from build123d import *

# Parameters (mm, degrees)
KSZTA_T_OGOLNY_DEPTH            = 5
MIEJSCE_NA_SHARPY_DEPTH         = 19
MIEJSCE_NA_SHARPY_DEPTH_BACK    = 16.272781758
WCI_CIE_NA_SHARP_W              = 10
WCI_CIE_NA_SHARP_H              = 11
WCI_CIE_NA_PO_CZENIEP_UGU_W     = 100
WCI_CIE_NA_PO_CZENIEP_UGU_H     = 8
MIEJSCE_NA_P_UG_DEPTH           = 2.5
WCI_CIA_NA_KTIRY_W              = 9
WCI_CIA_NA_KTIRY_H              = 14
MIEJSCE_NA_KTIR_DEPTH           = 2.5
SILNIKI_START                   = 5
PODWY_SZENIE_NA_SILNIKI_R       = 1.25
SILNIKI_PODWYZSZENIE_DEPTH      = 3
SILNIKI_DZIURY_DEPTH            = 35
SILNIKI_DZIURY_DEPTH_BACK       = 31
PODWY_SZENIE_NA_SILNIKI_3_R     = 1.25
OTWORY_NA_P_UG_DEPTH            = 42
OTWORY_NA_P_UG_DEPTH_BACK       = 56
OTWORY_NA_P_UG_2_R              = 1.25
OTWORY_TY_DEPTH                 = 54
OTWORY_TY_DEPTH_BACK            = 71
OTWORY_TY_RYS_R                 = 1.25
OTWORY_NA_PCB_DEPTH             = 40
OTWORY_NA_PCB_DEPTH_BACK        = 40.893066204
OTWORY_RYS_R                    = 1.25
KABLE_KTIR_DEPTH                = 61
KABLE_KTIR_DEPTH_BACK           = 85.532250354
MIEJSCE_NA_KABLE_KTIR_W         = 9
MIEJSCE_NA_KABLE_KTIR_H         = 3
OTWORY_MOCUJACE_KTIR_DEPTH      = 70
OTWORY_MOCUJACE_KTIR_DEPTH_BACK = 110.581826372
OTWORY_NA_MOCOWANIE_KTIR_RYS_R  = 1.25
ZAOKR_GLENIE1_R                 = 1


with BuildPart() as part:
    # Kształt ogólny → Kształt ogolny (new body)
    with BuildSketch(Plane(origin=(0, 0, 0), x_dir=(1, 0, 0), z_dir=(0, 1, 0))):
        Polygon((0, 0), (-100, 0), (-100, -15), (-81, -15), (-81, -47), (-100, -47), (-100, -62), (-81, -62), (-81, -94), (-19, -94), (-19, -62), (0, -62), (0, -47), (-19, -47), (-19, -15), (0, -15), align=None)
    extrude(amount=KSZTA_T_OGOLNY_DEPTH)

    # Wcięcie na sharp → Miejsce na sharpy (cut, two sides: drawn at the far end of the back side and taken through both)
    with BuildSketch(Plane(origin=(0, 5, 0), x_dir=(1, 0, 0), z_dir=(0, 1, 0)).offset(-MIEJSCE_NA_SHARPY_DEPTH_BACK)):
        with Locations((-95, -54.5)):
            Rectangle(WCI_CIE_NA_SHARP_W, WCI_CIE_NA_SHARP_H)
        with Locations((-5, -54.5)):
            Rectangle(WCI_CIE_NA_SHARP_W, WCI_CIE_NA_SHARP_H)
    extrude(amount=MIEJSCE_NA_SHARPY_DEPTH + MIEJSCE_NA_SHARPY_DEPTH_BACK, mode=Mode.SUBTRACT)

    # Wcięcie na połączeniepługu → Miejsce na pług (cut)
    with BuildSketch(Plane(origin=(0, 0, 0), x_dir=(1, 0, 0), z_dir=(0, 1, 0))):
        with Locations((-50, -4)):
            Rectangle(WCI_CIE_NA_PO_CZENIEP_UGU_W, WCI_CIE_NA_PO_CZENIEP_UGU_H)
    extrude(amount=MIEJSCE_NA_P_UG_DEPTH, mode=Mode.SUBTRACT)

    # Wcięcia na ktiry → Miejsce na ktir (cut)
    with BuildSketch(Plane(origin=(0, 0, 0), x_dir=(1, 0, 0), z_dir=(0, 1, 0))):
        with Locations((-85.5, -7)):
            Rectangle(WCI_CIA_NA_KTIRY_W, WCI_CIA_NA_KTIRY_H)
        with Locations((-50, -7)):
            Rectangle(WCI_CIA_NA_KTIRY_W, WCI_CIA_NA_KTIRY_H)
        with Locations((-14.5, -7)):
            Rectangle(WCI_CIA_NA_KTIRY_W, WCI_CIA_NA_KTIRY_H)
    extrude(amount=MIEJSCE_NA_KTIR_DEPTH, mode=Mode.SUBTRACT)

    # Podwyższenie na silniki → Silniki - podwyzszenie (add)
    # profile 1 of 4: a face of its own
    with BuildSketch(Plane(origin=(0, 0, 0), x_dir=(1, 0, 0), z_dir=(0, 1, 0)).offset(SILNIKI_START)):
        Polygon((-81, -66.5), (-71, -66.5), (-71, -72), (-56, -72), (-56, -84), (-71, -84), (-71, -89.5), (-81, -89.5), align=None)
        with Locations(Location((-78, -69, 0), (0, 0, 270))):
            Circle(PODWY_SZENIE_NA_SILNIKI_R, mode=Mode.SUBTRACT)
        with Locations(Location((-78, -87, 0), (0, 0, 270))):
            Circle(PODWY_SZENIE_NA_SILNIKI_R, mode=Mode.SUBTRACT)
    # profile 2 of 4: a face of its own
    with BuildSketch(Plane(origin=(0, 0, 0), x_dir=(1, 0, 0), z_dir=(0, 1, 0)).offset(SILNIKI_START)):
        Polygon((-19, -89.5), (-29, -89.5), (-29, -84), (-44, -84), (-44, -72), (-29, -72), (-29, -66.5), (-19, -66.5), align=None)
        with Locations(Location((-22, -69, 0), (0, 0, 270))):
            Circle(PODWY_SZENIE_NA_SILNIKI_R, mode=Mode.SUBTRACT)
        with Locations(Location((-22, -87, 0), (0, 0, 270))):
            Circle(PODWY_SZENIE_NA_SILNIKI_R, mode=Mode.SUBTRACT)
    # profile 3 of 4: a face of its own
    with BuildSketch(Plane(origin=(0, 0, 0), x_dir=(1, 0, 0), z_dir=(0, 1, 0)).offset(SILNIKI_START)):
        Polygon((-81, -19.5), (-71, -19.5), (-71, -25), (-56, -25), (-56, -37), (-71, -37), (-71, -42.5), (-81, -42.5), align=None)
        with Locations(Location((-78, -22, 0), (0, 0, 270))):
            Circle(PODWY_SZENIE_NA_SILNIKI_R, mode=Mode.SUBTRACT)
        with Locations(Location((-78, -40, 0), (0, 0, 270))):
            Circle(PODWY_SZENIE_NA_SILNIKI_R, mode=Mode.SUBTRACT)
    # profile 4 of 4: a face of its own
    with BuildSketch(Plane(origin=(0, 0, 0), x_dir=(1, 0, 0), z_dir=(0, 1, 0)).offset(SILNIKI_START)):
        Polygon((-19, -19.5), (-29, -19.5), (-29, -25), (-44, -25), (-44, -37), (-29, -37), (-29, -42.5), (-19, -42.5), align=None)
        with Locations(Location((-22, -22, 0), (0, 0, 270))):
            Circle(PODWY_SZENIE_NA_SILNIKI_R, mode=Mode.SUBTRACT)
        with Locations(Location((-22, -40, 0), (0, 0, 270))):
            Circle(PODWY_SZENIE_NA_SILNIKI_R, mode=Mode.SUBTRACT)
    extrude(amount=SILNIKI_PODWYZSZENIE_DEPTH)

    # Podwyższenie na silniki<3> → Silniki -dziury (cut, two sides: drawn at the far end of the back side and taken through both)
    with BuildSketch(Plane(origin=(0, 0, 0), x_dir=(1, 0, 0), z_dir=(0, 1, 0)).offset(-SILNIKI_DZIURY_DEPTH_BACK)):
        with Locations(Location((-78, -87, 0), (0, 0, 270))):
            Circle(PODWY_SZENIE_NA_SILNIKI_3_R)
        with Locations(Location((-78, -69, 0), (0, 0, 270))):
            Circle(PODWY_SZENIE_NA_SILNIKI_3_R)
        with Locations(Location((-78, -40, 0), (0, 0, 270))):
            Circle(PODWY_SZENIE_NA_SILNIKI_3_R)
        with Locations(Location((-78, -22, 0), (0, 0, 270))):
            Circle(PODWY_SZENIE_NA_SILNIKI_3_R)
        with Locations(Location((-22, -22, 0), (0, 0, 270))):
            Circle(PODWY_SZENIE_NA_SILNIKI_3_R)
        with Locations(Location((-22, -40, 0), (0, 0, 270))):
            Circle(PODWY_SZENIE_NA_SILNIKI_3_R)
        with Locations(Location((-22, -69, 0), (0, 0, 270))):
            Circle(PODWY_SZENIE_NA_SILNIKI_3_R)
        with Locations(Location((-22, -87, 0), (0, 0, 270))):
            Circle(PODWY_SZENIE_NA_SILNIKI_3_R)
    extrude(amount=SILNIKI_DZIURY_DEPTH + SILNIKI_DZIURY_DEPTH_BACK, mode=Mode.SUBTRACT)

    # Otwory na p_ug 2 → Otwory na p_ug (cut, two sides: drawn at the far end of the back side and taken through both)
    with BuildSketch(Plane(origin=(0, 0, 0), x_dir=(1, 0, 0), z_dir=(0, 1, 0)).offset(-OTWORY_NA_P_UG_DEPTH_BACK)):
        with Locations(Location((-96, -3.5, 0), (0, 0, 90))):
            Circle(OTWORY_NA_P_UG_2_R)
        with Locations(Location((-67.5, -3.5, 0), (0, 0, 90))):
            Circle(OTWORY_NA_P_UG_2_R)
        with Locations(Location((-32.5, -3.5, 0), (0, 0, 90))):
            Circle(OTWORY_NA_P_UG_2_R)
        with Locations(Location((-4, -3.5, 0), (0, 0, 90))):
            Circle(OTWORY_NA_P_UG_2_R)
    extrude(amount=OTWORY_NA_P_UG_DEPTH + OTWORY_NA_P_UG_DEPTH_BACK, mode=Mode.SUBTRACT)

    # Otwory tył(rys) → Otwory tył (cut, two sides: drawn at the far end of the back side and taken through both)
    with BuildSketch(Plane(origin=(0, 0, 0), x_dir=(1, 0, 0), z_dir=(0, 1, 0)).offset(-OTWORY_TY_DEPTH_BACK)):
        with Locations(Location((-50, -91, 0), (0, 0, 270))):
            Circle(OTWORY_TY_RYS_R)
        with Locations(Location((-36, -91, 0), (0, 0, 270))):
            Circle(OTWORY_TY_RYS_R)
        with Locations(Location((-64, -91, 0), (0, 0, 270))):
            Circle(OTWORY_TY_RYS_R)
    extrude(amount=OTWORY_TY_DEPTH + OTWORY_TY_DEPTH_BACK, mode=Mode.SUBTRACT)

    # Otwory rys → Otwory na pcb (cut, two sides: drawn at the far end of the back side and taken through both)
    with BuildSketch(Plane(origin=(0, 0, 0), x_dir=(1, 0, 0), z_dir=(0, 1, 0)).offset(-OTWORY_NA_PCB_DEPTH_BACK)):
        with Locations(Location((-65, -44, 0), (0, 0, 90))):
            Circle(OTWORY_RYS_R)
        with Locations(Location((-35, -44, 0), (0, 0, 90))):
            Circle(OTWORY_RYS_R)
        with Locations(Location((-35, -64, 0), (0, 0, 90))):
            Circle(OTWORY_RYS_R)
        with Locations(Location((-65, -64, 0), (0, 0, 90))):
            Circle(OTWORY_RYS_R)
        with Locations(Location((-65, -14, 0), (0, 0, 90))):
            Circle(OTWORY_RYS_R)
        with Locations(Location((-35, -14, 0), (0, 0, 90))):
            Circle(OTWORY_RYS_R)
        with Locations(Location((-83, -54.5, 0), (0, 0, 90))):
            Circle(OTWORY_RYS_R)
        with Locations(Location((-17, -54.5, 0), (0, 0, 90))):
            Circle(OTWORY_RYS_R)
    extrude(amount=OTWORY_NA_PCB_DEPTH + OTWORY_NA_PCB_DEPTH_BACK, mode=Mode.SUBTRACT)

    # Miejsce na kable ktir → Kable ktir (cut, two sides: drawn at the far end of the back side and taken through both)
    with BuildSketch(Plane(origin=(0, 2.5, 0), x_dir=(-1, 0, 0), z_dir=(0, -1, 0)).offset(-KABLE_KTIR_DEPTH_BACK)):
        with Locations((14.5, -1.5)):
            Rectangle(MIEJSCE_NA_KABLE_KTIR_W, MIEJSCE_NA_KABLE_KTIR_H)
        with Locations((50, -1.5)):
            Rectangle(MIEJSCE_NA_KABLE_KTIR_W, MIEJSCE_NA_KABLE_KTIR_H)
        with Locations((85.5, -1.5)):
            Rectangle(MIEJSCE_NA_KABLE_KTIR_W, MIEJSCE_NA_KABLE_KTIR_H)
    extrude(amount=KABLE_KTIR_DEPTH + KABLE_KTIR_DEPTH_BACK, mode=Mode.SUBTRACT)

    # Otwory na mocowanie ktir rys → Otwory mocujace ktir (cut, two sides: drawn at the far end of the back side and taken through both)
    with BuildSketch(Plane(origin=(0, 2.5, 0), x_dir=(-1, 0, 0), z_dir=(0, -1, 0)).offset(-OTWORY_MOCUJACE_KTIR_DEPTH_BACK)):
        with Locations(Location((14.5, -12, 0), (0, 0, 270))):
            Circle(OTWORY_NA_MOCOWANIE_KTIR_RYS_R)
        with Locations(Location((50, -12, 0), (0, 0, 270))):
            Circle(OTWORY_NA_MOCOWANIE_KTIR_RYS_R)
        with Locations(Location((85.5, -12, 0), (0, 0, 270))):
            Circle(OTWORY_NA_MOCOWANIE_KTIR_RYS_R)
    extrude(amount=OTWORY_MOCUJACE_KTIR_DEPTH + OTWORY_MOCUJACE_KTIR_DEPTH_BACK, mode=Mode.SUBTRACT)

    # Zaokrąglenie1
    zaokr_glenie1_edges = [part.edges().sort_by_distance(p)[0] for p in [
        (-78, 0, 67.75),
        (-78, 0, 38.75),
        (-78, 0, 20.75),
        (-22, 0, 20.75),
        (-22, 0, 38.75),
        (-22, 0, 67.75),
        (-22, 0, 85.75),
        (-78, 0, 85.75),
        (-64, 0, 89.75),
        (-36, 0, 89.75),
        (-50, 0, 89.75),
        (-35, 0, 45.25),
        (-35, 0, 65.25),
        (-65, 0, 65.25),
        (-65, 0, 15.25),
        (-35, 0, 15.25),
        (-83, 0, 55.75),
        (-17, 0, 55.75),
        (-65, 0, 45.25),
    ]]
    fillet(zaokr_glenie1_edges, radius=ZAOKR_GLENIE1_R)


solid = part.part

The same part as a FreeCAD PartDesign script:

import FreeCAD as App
import Part
import Sketcher


def edges_at(feature, points):
    """Names of the edges that pass closest to the given points."""
    edges = feature.Shape.Edges
    near = lambda p: min(range(len(edges)), key=lambda i: edges[i].distToShape(Part.Vertex(*p))[0])
    return sorted({f"Edge{near(p) + 1}" for p in points})


def add_polygon(sketch, points):
    """Adds a closed chain of lines whose ends are joined by coincident constraints."""
    first, n = sketch.GeometryCount, len(points)
    for a, b in zip(points, points[1:] + points[:1]):
        sketch.addGeometry(Part.LineSegment(App.Vector(*a, 0), App.Vector(*b, 0)), False)
    for i in range(n):
        sketch.addConstraint(Sketcher.Constraint("Coincident", first + i, 2, first + (i + 1) % n, 1))

doc = App.newDocument("Part")
body = doc.addObject("PartDesign::Body", "Body")

sketch1 = doc.addObject("Sketcher::SketchObject", "Sketch")
body.addObject(sketch1)
sketch1.AttachmentSupport = (doc.XZ_Plane, [""])
sketch1.MapMode = "FlatFace"
add_polygon(sketch1, [(0, 0), (-100, 0), (-100, 15), (-81, 15), (-81, 47), (-100, 47), (-100, 62), (-81, 62), (-81, 94), (-19, 94), (-19, 62), (0, 62), (0, 47), (-19, 47), (-19, 15), (0, 15)])
sketch1.addConstraint(Sketcher.Constraint("Horizontal", 0))
sketch1.addConstraint(Sketcher.Constraint("Vertical", 1))
sketch1.addConstraint(Sketcher.Constraint("Horizontal", 2))
sketch1.addConstraint(Sketcher.Constraint("Vertical", 3))
sketch1.addConstraint(Sketcher.Constraint("Horizontal", 4))
sketch1.addConstraint(Sketcher.Constraint("Vertical", 5))
sketch1.addConstraint(Sketcher.Constraint("Horizontal", 6))
sketch1.addConstraint(Sketcher.Constraint("Vertical", 7))
sketch1.addConstraint(Sketcher.Constraint("Horizontal", 8))
sketch1.addConstraint(Sketcher.Constraint("Vertical", 9))
sketch1.addConstraint(Sketcher.Constraint("Horizontal", 10))
sketch1.addConstraint(Sketcher.Constraint("Vertical", 11))
sketch1.addConstraint(Sketcher.Constraint("Horizontal", 12))
sketch1.addConstraint(Sketcher.Constraint("Vertical", 13))
sketch1.addConstraint(Sketcher.Constraint("Horizontal", 14))
sketch1.addConstraint(Sketcher.Constraint("Vertical", 15))
sketch1.addConstraint(Sketcher.Constraint("Coincident", 15, 2, -1, 1))
sketch1.addConstraint(Sketcher.Constraint("PointOnObject", 10, 2, -2))
sketch1.addConstraint(Sketcher.Constraint("Horizontal", 6, 2, 9, 2))
sketch1.addConstraint(Sketcher.Constraint("Horizontal", 4, 2, 11, 2))
sketch1.addConstraint(Sketcher.Constraint("Horizontal", 2, 2, 13, 2))
sketch1.addConstraint(Sketcher.Constraint("Vertical", 1, 2, 4, 2))
sketch1.addConstraint(Sketcher.Constraint("Vertical", 3, 2, 6, 2))
sketch1.addConstraint(Sketcher.Constraint("Vertical", 9, 2, 12, 2))
sketch1.addConstraint(Sketcher.Constraint("Equal", 6, 10))
sketch1.addConstraint(Sketcher.Constraint("Equal", 1, 5))
sketch1.addConstraint(Sketcher.Constraint("Equal", 3, 7))
sketch1.addConstraint(Sketcher.Constraint("DistanceX", 0, 2, 0, 1, 100.0))
sketch1.addConstraint(Sketcher.Constraint("DistanceX", 2, 1, 2, 2, 19.0))
sketch1.addConstraint(Sketcher.Constraint("DistanceY", 1, 1, 1, 2, 15.0))
sketch1.addConstraint(Sketcher.Constraint("DistanceY", 3, 1, 3, 2, 32.0))
pad1 = doc.addObject("PartDesign::Pad", "Pad")
body.addObject(pad1)
pad1.Profile = sketch1
pad1.Length = 5
pad1.Reversed = True

sketch2 = doc.addObject("Sketcher::SketchObject", "Sketch001")
body.addObject(sketch2)
sketch2.AttachmentSupport = (doc.XZ_Plane, [""])
sketch2.MapMode = "FlatFace"
sketch2.AttachmentOffset = App.Placement(App.Vector(0, 0, -5), App.Rotation())
add_polygon(sketch2, [(-100, 49), (-100, 60), (-90, 60), (-90, 49)])
add_polygon(sketch2, [(-10, 49), (-10, 60), (0, 60), (0, 49)])
sketch2.addConstraint(Sketcher.Constraint("Vertical", 0))
sketch2.addConstraint(Sketcher.Constraint("Horizontal", 1))
sketch2.addConstraint(Sketcher.Constraint("Vertical", 2))
sketch2.addConstraint(Sketcher.Constraint("Horizontal", 3))
sketch2.addConstraint(Sketcher.Constraint("Vertical", 4))
sketch2.addConstraint(Sketcher.Constraint("Horizontal", 5))
sketch2.addConstraint(Sketcher.Constraint("Vertical", 6))
sketch2.addConstraint(Sketcher.Constraint("Horizontal", 7))
sketch2.addConstraint(Sketcher.Constraint("PointOnObject", 5, 2, -2))
sketch2.addConstraint(Sketcher.Constraint("Horizontal", 1, 2, 4, 2))
sketch2.addConstraint(Sketcher.Constraint("Horizontal", 3, 2, 6, 2))
sketch2.addConstraint(Sketcher.Constraint("Equal", 3, 5))
sketch2.addConstraint(Sketcher.Constraint("DistanceX", 1, 1, 1, 2, 10.0))
sketch2.addConstraint(Sketcher.Constraint("DistanceY", 0, 1, 0, 2, 11.0))
sketch2.addConstraint(Sketcher.Constraint("DistanceX", 0, 2, -1, 1, 100.0))
sketch2.addConstraint(Sketcher.Constraint("DistanceY", -1, 1, 0, 2, 60.0))
pocket1 = doc.addObject("PartDesign::Pocket", "Pocket")
body.addObject(pocket1)
pocket1.Profile = sketch2
pocket1.Type = "ThroughAll"
pocket1.Midplane = True

sketch3 = doc.addObject("Sketcher::SketchObject", "Sketch002")
body.addObject(sketch3)
sketch3.AttachmentSupport = (doc.XZ_Plane, [""])
sketch3.MapMode = "FlatFace"
add_polygon(sketch3, [(-100, 0), (-100, 8), (0, 8), (0, 0)])
sketch3.addConstraint(Sketcher.Constraint("Vertical", 0))
sketch3.addConstraint(Sketcher.Constraint("Horizontal", 1))
sketch3.addConstraint(Sketcher.Constraint("Vertical", 2))
sketch3.addConstraint(Sketcher.Constraint("Horizontal", 3))
sketch3.addConstraint(Sketcher.Constraint("Coincident", 2, 2, -1, 1))
sketch3.addConstraint(Sketcher.Constraint("DistanceX", 1, 1, 1, 2, 100.0))
sketch3.addConstraint(Sketcher.Constraint("DistanceY", 0, 1, 0, 2, 8.0))
pocket2 = doc.addObject("PartDesign::Pocket", "Pocket001")
body.addObject(pocket2)
pocket2.Profile = sketch3
pocket2.Length = 2.5

sketch4 = doc.addObject("Sketcher::SketchObject", "Sketch003")
body.addObject(sketch4)
sketch4.AttachmentSupport = (doc.XZ_Plane, [""])
sketch4.MapMode = "FlatFace"
add_polygon(sketch4, [(-90, 0), (-90, 14), (-81, 14), (-81, 0)])
add_polygon(sketch4, [(-54.5, 0), (-54.5, 14), (-45.5, 14), (-45.5, 0)])
add_polygon(sketch4, [(-19, 0), (-19, 14), (-10, 14), (-10, 0)])
sketch4.addConstraint(Sketcher.Constraint("Vertical", 0))
sketch4.addConstraint(Sketcher.Constraint("Horizontal", 1))
sketch4.addConstraint(Sketcher.Constraint("Vertical", 2))
sketch4.addConstraint(Sketcher.Constraint("Horizontal", 3))
sketch4.addConstraint(Sketcher.Constraint("Vertical", 4))
sketch4.addConstraint(Sketcher.Constraint("Horizontal", 5))
sketch4.addConstraint(Sketcher.Constraint("Vertical", 6))
sketch4.addConstraint(Sketcher.Constraint("Horizontal", 7))
sketch4.addConstraint(Sketcher.Constraint("Vertical", 8))
sketch4.addConstraint(Sketcher.Constraint("Horizontal", 9))
sketch4.addConstraint(Sketcher.Constraint("Vertical", 10))
sketch4.addConstraint(Sketcher.Constraint("Horizontal", 11))
sketch4.addConstraint(Sketcher.Constraint("PointOnObject", 2, 2, -1))
sketch4.addConstraint(Sketcher.Constraint("PointOnObject", 6, 2, -1))
sketch4.addConstraint(Sketcher.Constraint("PointOnObject", 10, 2, -1))
sketch4.addConstraint(Sketcher.Constraint("Horizontal", 1, 2, 4, 2))
sketch4.addConstraint(Sketcher.Constraint("Horizontal", 5, 2, 8, 2))
sketch4.addConstraint(Sketcher.Constraint("Equal", 3, 5))
sketch4.addConstraint(Sketcher.Constraint("Equal", 7, 9))
sketch4.addConstraint(Sketcher.Constraint("DistanceX", 1, 1, 1, 2, 9.0))
sketch4.addConstraint(Sketcher.Constraint("DistanceY", 0, 1, 0, 2, 14.0))
sketch4.addConstraint(Sketcher.Constraint("DistanceX", 0, 2, -1, 1, 90.0))
sketch4.addConstraint(Sketcher.Constraint("DistanceX", 8, 2, -1, 1, 19.0))
sketch4.addConstraint(Sketcher.Constraint("DistanceX", 4, 2, -1, 1, 54.5))
pocket3 = doc.addObject("PartDesign::Pocket", "Pocket002")
body.addObject(pocket3)
pocket3.Profile = sketch4
pocket3.Length = 2.5

sketch5 = doc.addObject("Sketcher::SketchObject", "Sketch004")
body.addObject(sketch5)
sketch5.AttachmentSupport = (doc.XZ_Plane, [""])
sketch5.MapMode = "FlatFace"
sketch5.AttachmentOffset = App.Placement(App.Vector(0, 0, -5), App.Rotation())
add_polygon(sketch5, [(-71, 66.5), (-81, 66.5), (-81, 89.5), (-71, 89.5), (-71, 84), (-56, 84), (-56, 72), (-71, 72)])
sketch5.addGeometry(Part.Circle(App.Vector(-78, 87, 0), App.Vector(0, 0, 1), 1.25), False)
sketch5.addGeometry(Part.Circle(App.Vector(-78, 69, 0), App.Vector(0, 0, 1), 1.25), False)
add_polygon(sketch5, [(-29, 89.5), (-19, 89.5), (-19, 66.5), (-29, 66.5), (-29, 72), (-44, 72), (-44, 84), (-29, 84)])
sketch5.addGeometry(Part.Circle(App.Vector(-22, 87, 0), App.Vector(0, 0, 1), 1.25), False)
sketch5.addGeometry(Part.Circle(App.Vector(-22, 69, 0), App.Vector(0, 0, 1), 1.25), False)
add_polygon(sketch5, [(-71, 19.5), (-81, 19.5), (-81, 42.5), (-71, 42.5), (-71, 37), (-56, 37), (-56, 25), (-71, 25)])
sketch5.addGeometry(Part.Circle(App.Vector(-78, 40, 0), App.Vector(0, 0, 1), 1.25), False)
sketch5.addGeometry(Part.Circle(App.Vector(-78, 22, 0), App.Vector(0, 0, 1), 1.25), False)
add_polygon(sketch5, [(-19, 19.5), (-29, 19.5), (-29, 25), (-44, 25), (-44, 37), (-29, 37), (-29, 42.5), (-19, 42.5)])
sketch5.addGeometry(Part.Circle(App.Vector(-22, 40, 0), App.Vector(0, 0, 1), 1.25), False)
sketch5.addGeometry(Part.Circle(App.Vector(-22, 22, 0), App.Vector(0, 0, 1), 1.25), False)
sketch5.addConstraint(Sketcher.Constraint("Horizontal", 0))
sketch5.addConstraint(Sketcher.Constraint("Vertical", 1))
sketch5.addConstraint(Sketcher.Constraint("Horizontal", 2))
sketch5.addConstraint(Sketcher.Constraint("Vertical", 3))
sketch5.addConstraint(Sketcher.Constraint("Horizontal", 4))
sketch5.addConstraint(Sketcher.Constraint("Vertical", 5))
sketch5.addConstraint(Sketcher.Constraint("Horizontal", 6))
sketch5.addConstraint(Sketcher.Constraint("Vertical", 7))
sketch5.addConstraint(Sketcher.Constraint("Horizontal", 10))
sketch5.addConstraint(Sketcher.Constraint("Vertical", 11))
sketch5.addConstraint(Sketcher.Constraint("Horizontal", 12))
sketch5.addConstraint(Sketcher.Constraint("Vertical", 13))
sketch5.addConstraint(Sketcher.Constraint("Horizontal", 14))
sketch5.addConstraint(Sketcher.Constraint("Vertical", 15))
sketch5.addConstraint(Sketcher.Constraint("Horizontal", 16))
sketch5.addConstraint(Sketcher.Constraint("Vertical", 17))
sketch5.addConstraint(Sketcher.Constraint("Horizontal", 20))
sketch5.addConstraint(Sketcher.Constraint("Vertical", 21))
sketch5.addConstraint(Sketcher.Constraint("Horizontal", 22))
sketch5.addConstraint(Sketcher.Constraint("Vertical", 23))
sketch5.addConstraint(Sketcher.Constraint("Horizontal", 24))
sketch5.addConstraint(Sketcher.Constraint("Vertical", 25))
sketch5.addConstraint(Sketcher.Constraint("Horizontal", 26))
sketch5.addConstraint(Sketcher.Constraint("Vertical", 27))
sketch5.addConstraint(Sketcher.Constraint("Horizontal", 30))
sketch5.addConstraint(Sketcher.Constraint("Vertical", 31))
sketch5.addConstraint(Sketcher.Constraint("Horizontal", 32))
sketch5.addConstraint(Sketcher.Constraint("Vertical", 33))
sketch5.addConstraint(Sketcher.Constraint("Horizontal", 34))
sketch5.addConstraint(Sketcher.Constraint("Vertical", 35))
sketch5.addConstraint(Sketcher.Constraint("Horizontal", 36))
sketch5.addConstraint(Sketcher.Constraint("Vertical", 37))
sketch5.addConstraint(Sketcher.Constraint("Equal", 8, 9))
sketch5.addConstraint(Sketcher.Constraint("Equal", 9, 18))
sketch5.addConstraint(Sketcher.Constraint("Equal", 18, 19))
sketch5.addConstraint(Sketcher.Constraint("Equal", 19, 28))
sketch5.addConstraint(Sketcher.Constraint("Equal", 28, 29))
sketch5.addConstraint(Sketcher.Constraint("Equal", 29, 38))
sketch5.addConstraint(Sketcher.Constraint("Equal", 38, 39))
sketch5.addConstraint(Sketcher.Constraint("Horizontal", 8, 3, 18, 3))
sketch5.addConstraint(Sketcher.Constraint("Horizontal", 9, 3, 19, 3))
sketch5.addConstraint(Sketcher.Constraint("Horizontal", 28, 3, 38, 3))
sketch5.addConstraint(Sketcher.Constraint("Horizontal", 29, 3, 39, 3))
sketch5.addConstraint(Sketcher.Constraint("Horizontal", 2, 2, 10, 2))
sketch5.addConstraint(Sketcher.Constraint("Horizontal", 7, 2, 11, 2))
sketch5.addConstraint(Sketcher.Constraint("Horizontal", 6, 2, 13, 2))
sketch5.addConstraint(Sketcher.Constraint("Horizontal", 4, 2, 15, 2))
sketch5.addConstraint(Sketcher.Constraint("Horizontal", 27, 2, 30, 2))
sketch5.addConstraint(Sketcher.Constraint("Horizontal", 26, 2, 31, 2))
sketch5.addConstraint(Sketcher.Constraint("Horizontal", 24, 2, 33, 2))
sketch5.addConstraint(Sketcher.Constraint("Horizontal", 22, 2, 35, 2))
sketch5.addConstraint(Sketcher.Constraint("Vertical", 8, 3, 9, 3))
sketch5.addConstraint(Sketcher.Constraint("Vertical", 18, 3, 19, 3))
sketch5.addConstraint(Sketcher.Constraint("Vertical", 9, 3, 28, 3))
sketch5.addConstraint(Sketcher.Constraint("Vertical", 28, 3, 29, 3))
sketch5.addConstraint(Sketcher.Constraint("Vertical", 19, 3, 38, 3))
sketch5.addConstraint(Sketcher.Constraint("Vertical", 38, 3, 39, 3))
sketch5.addConstraint(Sketcher.Constraint("Vertical", 3, 2, 6, 2))
sketch5.addConstraint(Sketcher.Constraint("Vertical", 13, 2, 16, 2))
sketch5.addConstraint(Sketcher.Constraint("Vertical", 1, 2, 20, 2))
sketch5.addConstraint(Sketcher.Constraint("Vertical", 7, 2, 22, 2))
sketch5.addConstraint(Sketcher.Constraint("Vertical", 5, 2, 24, 2))
sketch5.addConstraint(Sketcher.Constraint("Vertical", 23, 2, 26, 2))
sketch5.addConstraint(Sketcher.Constraint("Vertical", 17, 2, 30, 2))
sketch5.addConstraint(Sketcher.Constraint("Vertical", 15, 2, 32, 2))
sketch5.addConstraint(Sketcher.Constraint("Vertical", 31, 2, 34, 2))
sketch5.addConstraint(Sketcher.Constraint("Vertical", 11, 2, 36, 2))
sketch5.addConstraint(Sketcher.Constraint("Equal", 2, 10))
sketch5.addConstraint(Sketcher.Constraint("Equal", 6, 14))
sketch5.addConstraint(Sketcher.Constraint("Equal", 3, 7))
sketch5.addConstraint(Sketcher.Constraint("Equal", 11, 21))
sketch5.addConstraint(Sketcher.Constraint("Equal", 17, 23))
sketch5.addConstraint(Sketcher.Constraint("Equal", 15, 25))
sketch5.addConstraint(Sketcher.Constraint("Diameter", 8, 2.5))
sketch5.addConstraint(Sketcher.Constraint("DistanceX", 0, 2, 0, 1, 10.0))
sketch5.addConstraint(Sketcher.Constraint("DistanceX", 4, 1, 4, 2, 15.0))
sketch5.addConstraint(Sketcher.Constraint("DistanceY", 1, 1, 1, 2, 23.0))
sketch5.addConstraint(Sketcher.Constraint("DistanceY", 5, 2, 5, 1, 12.0))
sketch5.addConstraint(Sketcher.Constraint("DistanceX", 8, 3, -1, 1, 78.0))
sketch5.addConstraint(Sketcher.Constraint("DistanceY", -1, 1, 8, 3, 87.0))
sketch5.addConstraint(Sketcher.Constraint("DistanceY", -1, 1, 9, 3, 69.0))
sketch5.addConstraint(Sketcher.Constraint("DistanceX", 18, 3, -1, 1, 22.0))
sketch5.addConstraint(Sketcher.Constraint("DistanceY", -1, 1, 28, 3, 40.0))
sketch5.addConstraint(Sketcher.Constraint("DistanceY", -1, 1, 29, 3, 22.0))
sketch5.addConstraint(Sketcher.Constraint("DistanceX", 0, 2, -1, 1, 81.0))
sketch5.addConstraint(Sketcher.Constraint("DistanceY", -1, 1, 3, 2, 84.0))
sketch5.addConstraint(Sketcher.Constraint("DistanceX", 10, 2, -1, 1, 19.0))
sketch5.addConstraint(Sketcher.Constraint("DistanceY", -1, 1, 23, 2, 37.0))
pad2 = doc.addObject("PartDesign::Pad", "Pad001")
body.addObject(pad2)
pad2.Profile = sketch5
pad2.Length = 3
pad2.Reversed = True

sketch6 = doc.addObject("Sketcher::SketchObject", "Sketch005")
body.addObject(sketch6)
sketch6.AttachmentSupport = (doc.XZ_Plane, [""])
sketch6.MapMode = "FlatFace"
sketch6.addGeometry(Part.Circle(App.Vector(-78, 87, 0), App.Vector(0, 0, 1), 1.25), False)
sketch6.addGeometry(Part.Circle(App.Vector(-78, 69, 0), App.Vector(0, 0, 1), 1.25), False)
sketch6.addGeometry(Part.Circle(App.Vector(-78, 40, 0), App.Vector(0, 0, 1), 1.25), False)
sketch6.addGeometry(Part.Circle(App.Vector(-78, 22, 0), App.Vector(0, 0, 1), 1.25), False)
sketch6.addGeometry(Part.Circle(App.Vector(-22, 22, 0), App.Vector(0, 0, 1), 1.25), False)
sketch6.addGeometry(Part.Circle(App.Vector(-22, 40, 0), App.Vector(0, 0, 1), 1.25), False)
sketch6.addGeometry(Part.Circle(App.Vector(-22, 69, 0), App.Vector(0, 0, 1), 1.25), False)
sketch6.addGeometry(Part.Circle(App.Vector(-22, 87, 0), App.Vector(0, 0, 1), 1.25), False)
sketch6.addConstraint(Sketcher.Constraint("Equal", 0, 1))
sketch6.addConstraint(Sketcher.Constraint("Equal", 1, 2))
sketch6.addConstraint(Sketcher.Constraint("Equal", 2, 3))
sketch6.addConstraint(Sketcher.Constraint("Equal", 3, 4))
sketch6.addConstraint(Sketcher.Constraint("Equal", 4, 5))
sketch6.addConstraint(Sketcher.Constraint("Equal", 5, 6))
sketch6.addConstraint(Sketcher.Constraint("Equal", 6, 7))
sketch6.addConstraint(Sketcher.Constraint("Horizontal", 3, 3, 4, 3))
sketch6.addConstraint(Sketcher.Constraint("Horizontal", 2, 3, 5, 3))
sketch6.addConstraint(Sketcher.Constraint("Horizontal", 1, 3, 6, 3))
sketch6.addConstraint(Sketcher.Constraint("Horizontal", 0, 3, 7, 3))
sketch6.addConstraint(Sketcher.Constraint("Vertical", 0, 3, 1, 3))
sketch6.addConstraint(Sketcher.Constraint("Vertical", 1, 3, 2, 3))
sketch6.addConstraint(Sketcher.Constraint("Vertical", 2, 3, 3, 3))
sketch6.addConstraint(Sketcher.Constraint("Vertical", 4, 3, 5, 3))
sketch6.addConstraint(Sketcher.Constraint("Vertical", 5, 3, 6, 3))
sketch6.addConstraint(Sketcher.Constraint("Vertical", 6, 3, 7, 3))
sketch6.addConstraint(Sketcher.Constraint("Diameter", 0, 2.5))
sketch6.addConstraint(Sketcher.Constraint("DistanceX", 0, 3, -1, 1, 78.0))
sketch6.addConstraint(Sketcher.Constraint("DistanceY", -1, 1, 0, 3, 87.0))
sketch6.addConstraint(Sketcher.Constraint("DistanceY", -1, 1, 1, 3, 69.0))
sketch6.addConstraint(Sketcher.Constraint("DistanceY", -1, 1, 2, 3, 40.0))
sketch6.addConstraint(Sketcher.Constraint("DistanceY", -1, 1, 3, 3, 22.0))
sketch6.addConstraint(Sketcher.Constraint("DistanceX", 4, 3, -1, 1, 22.0))
pocket4 = doc.addObject("PartDesign::Pocket", "Pocket003")
body.addObject(pocket4)
pocket4.Profile = sketch6
pocket4.Type = "ThroughAll"
pocket4.Midplane = True

sketch7 = doc.addObject("Sketcher::SketchObject", "Sketch006")
body.addObject(sketch7)
sketch7.AttachmentSupport = (doc.XZ_Plane, [""])
sketch7.MapMode = "FlatFace"
sketch7.addGeometry(Part.Circle(App.Vector(-96, 3.5, 0), App.Vector(0, 0, 1), 1.25), False)
sketch7.addGeometry(Part.Circle(App.Vector(-67.5, 3.5, 0), App.Vector(0, 0, 1), 1.25), False)
sketch7.addGeometry(Part.Circle(App.Vector(-32.5, 3.5, 0), App.Vector(0, 0, 1), 1.25), False)
sketch7.addGeometry(Part.Circle(App.Vector(-4, 3.5, 0), App.Vector(0, 0, 1), 1.25), False)
sketch7.addConstraint(Sketcher.Constraint("Equal", 0, 1))
sketch7.addConstraint(Sketcher.Constraint("Equal", 1, 2))
sketch7.addConstraint(Sketcher.Constraint("Equal", 2, 3))
sketch7.addConstraint(Sketcher.Constraint("Horizontal", 0, 3, 1, 3))
sketch7.addConstraint(Sketcher.Constraint("Horizontal", 1, 3, 2, 3))
sketch7.addConstraint(Sketcher.Constraint("Horizontal", 2, 3, 3, 3))
sketch7.addConstraint(Sketcher.Constraint("Diameter", 0, 2.5))
sketch7.addConstraint(Sketcher.Constraint("DistanceX", 0, 3, -1, 1, 96.0))
sketch7.addConstraint(Sketcher.Constraint("DistanceX", 3, 3, -1, 1, 4.0))
sketch7.addConstraint(Sketcher.Constraint("DistanceX", 1, 3, 2, 3, 35.0))
sketch7.addConstraint(Sketcher.Constraint("DistanceY", -1, 1, 0, 3, 3.5))
sketch7.addConstraint(Sketcher.Constraint("DistanceX", 1, 3, -1, 1, 67.5))
pocket5 = doc.addObject("PartDesign::Pocket", "Pocket004")
body.addObject(pocket5)
pocket5.Profile = sketch7
pocket5.Type = "ThroughAll"
pocket5.Midplane = True

sketch8 = doc.addObject("Sketcher::SketchObject", "Sketch007")
body.addObject(sketch8)
sketch8.AttachmentSupport = (doc.XZ_Plane, [""])
sketch8.MapMode = "FlatFace"
sketch8.addGeometry(Part.Circle(App.Vector(-50, 91, 0), App.Vector(0, 0, 1), 1.25), False)
sketch8.addGeometry(Part.Circle(App.Vector(-36, 91, 0), App.Vector(0, 0, 1), 1.25), False)
sketch8.addGeometry(Part.Circle(App.Vector(-64, 91, 0), App.Vector(0, 0, 1), 1.25), False)
sketch8.addConstraint(Sketcher.Constraint("Equal", 0, 1))
sketch8.addConstraint(Sketcher.Constraint("Equal", 1, 2))
sketch8.addConstraint(Sketcher.Constraint("Horizontal", 0, 3, 1, 3))
sketch8.addConstraint(Sketcher.Constraint("Horizontal", 1, 3, 2, 3))
sketch8.addConstraint(Sketcher.Constraint("Diameter", 0, 2.5))
sketch8.addConstraint(Sketcher.Constraint("DistanceX", 0, 3, -1, 1, 50.0))
sketch8.addConstraint(Sketcher.Constraint("DistanceY", -1, 1, 0, 3, 91.0))
sketch8.addConstraint(Sketcher.Constraint("DistanceX", 1, 3, -1, 1, 36.0))
sketch8.addConstraint(Sketcher.Constraint("DistanceX", 2, 3, -1, 1, 64.0))
pocket6 = doc.addObject("PartDesign::Pocket", "Pocket005")
body.addObject(pocket6)
pocket6.Profile = sketch8
pocket6.Type = "ThroughAll"
pocket6.Midplane = True

sketch9 = doc.addObject("Sketcher::SketchObject", "Sketch008")
body.addObject(sketch9)
sketch9.AttachmentSupport = (doc.XZ_Plane, [""])
sketch9.MapMode = "FlatFace"
sketch9.addGeometry(Part.Circle(App.Vector(-65, 44, 0), App.Vector(0, 0, 1), 1.25), False)
sketch9.addGeometry(Part.Circle(App.Vector(-35, 44, 0), App.Vector(0, 0, 1), 1.25), False)
sketch9.addGeometry(Part.Circle(App.Vector(-35, 64, 0), App.Vector(0, 0, 1), 1.25), False)
sketch9.addGeometry(Part.Circle(App.Vector(-65, 64, 0), App.Vector(0, 0, 1), 1.25), False)
sketch9.addGeometry(Part.Circle(App.Vector(-65, 14, 0), App.Vector(0, 0, 1), 1.25), False)
sketch9.addGeometry(Part.Circle(App.Vector(-35, 14, 0), App.Vector(0, 0, 1), 1.25), False)
sketch9.addGeometry(Part.Circle(App.Vector(-83, 54.5, 0), App.Vector(0, 0, 1), 1.25), False)
sketch9.addGeometry(Part.Circle(App.Vector(-17, 54.5, 0), App.Vector(0, 0, 1), 1.25), False)
sketch9.addConstraint(Sketcher.Constraint("Equal", 0, 1))
sketch9.addConstraint(Sketcher.Constraint("Equal", 1, 2))
sketch9.addConstraint(Sketcher.Constraint("Equal", 2, 3))
sketch9.addConstraint(Sketcher.Constraint("Equal", 3, 4))
sketch9.addConstraint(Sketcher.Constraint("Equal", 4, 5))
sketch9.addConstraint(Sketcher.Constraint("Equal", 5, 6))
sketch9.addConstraint(Sketcher.Constraint("Equal", 6, 7))
sketch9.addConstraint(Sketcher.Constraint("Horizontal", 0, 3, 1, 3))
sketch9.addConstraint(Sketcher.Constraint("Horizontal", 2, 3, 3, 3))
sketch9.addConstraint(Sketcher.Constraint("Horizontal", 4, 3, 5, 3))
sketch9.addConstraint(Sketcher.Constraint("Horizontal", 6, 3, 7, 3))
sketch9.addConstraint(Sketcher.Constraint("Vertical", 1, 3, 2, 3))
sketch9.addConstraint(Sketcher.Constraint("Vertical", 0, 3, 3, 3))
sketch9.addConstraint(Sketcher.Constraint("Vertical", 3, 3, 4, 3))
sketch9.addConstraint(Sketcher.Constraint("Vertical", 2, 3, 5, 3))
sketch9.addConstraint(Sketcher.Constraint("Diameter", 0, 2.5))
sketch9.addConstraint(Sketcher.Constraint("DistanceX", 0, 3, -1, 1, 65.0))
sketch9.addConstraint(Sketcher.Constraint("DistanceY", -1, 1, 0, 3, 44.0))
sketch9.addConstraint(Sketcher.Constraint("DistanceX", 1, 3, -1, 1, 35.0))
sketch9.addConstraint(Sketcher.Constraint("DistanceY", -1, 1, 2, 3, 64.0))
sketch9.addConstraint(Sketcher.Constraint("DistanceY", -1, 1, 4, 3, 14.0))
sketch9.addConstraint(Sketcher.Constraint("DistanceX", 6, 3, -1, 1, 83.0))
sketch9.addConstraint(Sketcher.Constraint("DistanceX", 7, 3, -1, 1, 17.0))
sketch9.addConstraint(Sketcher.Constraint("DistanceY", -1, 1, 6, 3, 54.5))
pocket7 = doc.addObject("PartDesign::Pocket", "Pocket006")
body.addObject(pocket7)
pocket7.Profile = sketch9
pocket7.Type = "ThroughAll"
pocket7.Midplane = True

sketch10 = doc.addObject("Sketcher::SketchObject", "Sketch009")
body.addObject(sketch10)
sketch10.AttachmentSupport = (doc.XZ_Plane, [""])
sketch10.MapMode = "FlatFace"
sketch10.AttachmentOffset = App.Placement(App.Vector(0, 0, -2.5), App.Rotation())
add_polygon(sketch10, [(-10, 0), (-10, 3), (-19, 3), (-19, 0)])
add_polygon(sketch10, [(-45.5, 0), (-45.5, 3), (-54.5, 3), (-54.5, 0)])
add_polygon(sketch10, [(-81, 0), (-81, 3), (-90, 3), (-90, 0)])
sketch10.addConstraint(Sketcher.Constraint("Vertical", 0))
sketch10.addConstraint(Sketcher.Constraint("Horizontal", 1))
sketch10.addConstraint(Sketcher.Constraint("Vertical", 2))
sketch10.addConstraint(Sketcher.Constraint("Horizontal", 3))
sketch10.addConstraint(Sketcher.Constraint("Vertical", 4))
sketch10.addConstraint(Sketcher.Constraint("Horizontal", 5))
sketch10.addConstraint(Sketcher.Constraint("Vertical", 6))
sketch10.addConstraint(Sketcher.Constraint("Horizontal", 7))
sketch10.addConstraint(Sketcher.Constraint("Vertical", 8))
sketch10.addConstraint(Sketcher.Constraint("Horizontal", 9))
sketch10.addConstraint(Sketcher.Constraint("Vertical", 10))
sketch10.addConstraint(Sketcher.Constraint("Horizontal", 11))
sketch10.addConstraint(Sketcher.Constraint("PointOnObject", 2, 2, -1))
sketch10.addConstraint(Sketcher.Constraint("PointOnObject", 6, 2, -1))
sketch10.addConstraint(Sketcher.Constraint("PointOnObject", 10, 2, -1))
sketch10.addConstraint(Sketcher.Constraint("Horizontal", 1, 2, 4, 2))
sketch10.addConstraint(Sketcher.Constraint("Horizontal", 5, 2, 8, 2))
sketch10.addConstraint(Sketcher.Constraint("Equal", 3, 5))
sketch10.addConstraint(Sketcher.Constraint("Equal", 7, 9))
sketch10.addConstraint(Sketcher.Constraint("DistanceX", 1, 2, 1, 1, 9.0))
sketch10.addConstraint(Sketcher.Constraint("DistanceY", 0, 1, 0, 2, 3.0))
sketch10.addConstraint(Sketcher.Constraint("DistanceX", 0, 2, -1, 1, 10.0))
sketch10.addConstraint(Sketcher.Constraint("DistanceX", 8, 2, -1, 1, 81.0))
sketch10.addConstraint(Sketcher.Constraint("DistanceX", 4, 2, -1, 1, 45.5))
pocket8 = doc.addObject("PartDesign::Pocket", "Pocket007")
body.addObject(pocket8)
pocket8.Profile = sketch10
pocket8.Type = "ThroughAll"
pocket8.Midplane = True

sketch11 = doc.addObject("Sketcher::SketchObject", "Sketch010")
body.addObject(sketch11)
sketch11.AttachmentSupport = (doc.XZ_Plane, [""])
sketch11.MapMode = "FlatFace"
sketch11.AttachmentOffset = App.Placement(App.Vector(0, 0, -2.5), App.Rotation())
sketch11.addGeometry(Part.Circle(App.Vector(-14.5, 12, 0), App.Vector(0, 0, 1), 1.25), False)
sketch11.addGeometry(Part.Circle(App.Vector(-50, 12, 0), App.Vector(0, 0, 1), 1.25), False)
sketch11.addGeometry(Part.Circle(App.Vector(-85.5, 12, 0), App.Vector(0, 0, 1), 1.25), False)
sketch11.addConstraint(Sketcher.Constraint("Equal", 0, 1))
sketch11.addConstraint(Sketcher.Constraint("Equal", 1, 2))
sketch11.addConstraint(Sketcher.Constraint("Horizontal", 0, 3, 1, 3))
sketch11.addConstraint(Sketcher.Constraint("Horizontal", 1, 3, 2, 3))
sketch11.addConstraint(Sketcher.Constraint("Diameter", 0, 2.5))
sketch11.addConstraint(Sketcher.Constraint("DistanceY", -1, 1, 0, 3, 12.0))
sketch11.addConstraint(Sketcher.Constraint("DistanceX", 1, 3, -1, 1, 50.0))
sketch11.addConstraint(Sketcher.Constraint("DistanceX", 2, 3, 0, 3, 71.0))
sketch11.addConstraint(Sketcher.Constraint("DistanceX", 0, 3, -1, 1, 14.5))
pocket9 = doc.addObject("PartDesign::Pocket", "Pocket008")
body.addObject(pocket9)
pocket9.Profile = sketch11
pocket9.Type = "ThroughAll"
pocket9.Midplane = True
doc.recompute()

fillet = doc.addObject("PartDesign::Fillet", "Fillet")
body.addObject(fillet)
fillet.Base = (pocket9, edges_at(pocket9, [
    (-78, 0, 67.75),
    (-78, 0, 38.75),
    (-78, 0, 20.75),
    (-22, 0, 20.75),
    (-22, 0, 38.75),
    (-22, 0, 67.75),
    (-22, 0, 85.75),
    (-78, 0, 85.75),
    (-64, 0, 89.75),
    (-36, 0, 89.75),
    (-50, 0, 89.75),
    (-35, 0, 45.25),
    (-35, 0, 65.25),
    (-65, 0, 65.25),
    (-65, 0, 15.25),
    (-35, 0, 15.25),
    (-83, 0, 55.75),
    (-17, 0, 55.75),
    (-65, 0, 45.25),
]))
fillet.Radius = 1

doc.recompute()
